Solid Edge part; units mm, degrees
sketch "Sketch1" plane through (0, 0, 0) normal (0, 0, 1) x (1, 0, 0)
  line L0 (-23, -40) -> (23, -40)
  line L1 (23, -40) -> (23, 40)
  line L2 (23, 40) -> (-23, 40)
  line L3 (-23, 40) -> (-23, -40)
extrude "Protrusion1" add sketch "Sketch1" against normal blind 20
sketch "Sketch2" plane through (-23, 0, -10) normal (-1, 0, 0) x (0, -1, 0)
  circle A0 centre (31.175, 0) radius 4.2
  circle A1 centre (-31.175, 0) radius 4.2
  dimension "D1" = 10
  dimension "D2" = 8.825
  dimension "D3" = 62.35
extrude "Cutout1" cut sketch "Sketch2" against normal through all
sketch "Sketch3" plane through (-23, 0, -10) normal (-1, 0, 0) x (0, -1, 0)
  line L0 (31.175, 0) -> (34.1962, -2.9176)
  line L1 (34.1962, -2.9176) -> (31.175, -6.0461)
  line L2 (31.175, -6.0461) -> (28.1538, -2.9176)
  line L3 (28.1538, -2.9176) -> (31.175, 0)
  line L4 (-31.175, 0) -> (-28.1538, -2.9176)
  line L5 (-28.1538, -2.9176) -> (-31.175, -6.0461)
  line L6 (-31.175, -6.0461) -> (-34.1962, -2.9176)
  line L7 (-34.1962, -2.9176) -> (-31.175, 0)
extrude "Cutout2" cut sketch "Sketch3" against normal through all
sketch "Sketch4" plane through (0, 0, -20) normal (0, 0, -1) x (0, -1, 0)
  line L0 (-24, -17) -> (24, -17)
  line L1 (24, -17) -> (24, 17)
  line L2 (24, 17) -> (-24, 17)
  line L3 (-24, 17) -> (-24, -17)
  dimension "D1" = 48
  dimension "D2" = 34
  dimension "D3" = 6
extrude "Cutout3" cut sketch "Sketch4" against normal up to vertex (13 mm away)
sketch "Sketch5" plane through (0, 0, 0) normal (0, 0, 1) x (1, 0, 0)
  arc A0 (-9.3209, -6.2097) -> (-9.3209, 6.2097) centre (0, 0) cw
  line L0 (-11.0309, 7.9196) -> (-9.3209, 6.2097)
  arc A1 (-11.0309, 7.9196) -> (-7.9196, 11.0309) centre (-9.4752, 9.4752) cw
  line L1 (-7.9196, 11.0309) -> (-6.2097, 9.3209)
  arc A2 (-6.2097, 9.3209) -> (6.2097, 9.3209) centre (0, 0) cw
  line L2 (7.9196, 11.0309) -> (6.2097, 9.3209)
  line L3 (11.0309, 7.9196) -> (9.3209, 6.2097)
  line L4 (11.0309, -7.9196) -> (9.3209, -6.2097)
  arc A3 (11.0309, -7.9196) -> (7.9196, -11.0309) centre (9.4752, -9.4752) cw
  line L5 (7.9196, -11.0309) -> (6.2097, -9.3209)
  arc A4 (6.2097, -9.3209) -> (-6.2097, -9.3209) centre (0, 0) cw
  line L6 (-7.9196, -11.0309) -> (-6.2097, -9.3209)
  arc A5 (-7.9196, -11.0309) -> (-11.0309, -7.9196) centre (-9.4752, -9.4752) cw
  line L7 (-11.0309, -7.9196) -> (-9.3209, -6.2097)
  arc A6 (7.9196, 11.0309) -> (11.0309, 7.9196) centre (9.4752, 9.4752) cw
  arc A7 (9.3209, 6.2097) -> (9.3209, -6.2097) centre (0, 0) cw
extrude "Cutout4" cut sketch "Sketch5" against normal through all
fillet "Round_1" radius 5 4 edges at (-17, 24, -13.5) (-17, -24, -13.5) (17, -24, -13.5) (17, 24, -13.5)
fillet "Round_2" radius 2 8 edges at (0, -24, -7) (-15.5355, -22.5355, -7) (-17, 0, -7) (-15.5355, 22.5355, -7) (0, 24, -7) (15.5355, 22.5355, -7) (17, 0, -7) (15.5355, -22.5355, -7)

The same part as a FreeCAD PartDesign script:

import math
import FreeCAD as App
import Part
import Sketcher

V = App.Vector
Q = App.Units.Quantity


def edges_at(feature, points):
    """Names of the edges that pass closest to the given points."""
    edges = feature.Shape.Edges
    near = lambda p: min(range(len(edges)), key=lambda i: edges[i].distToShape(Part.Vertex(*p))[0])
    return sorted({f"Edge{near(p) + 1}" for p in points})


def add_polygon(sketch, points):
    """Adds a closed chain of lines whose ends are joined by coincident constraints."""
    first, n = sketch.GeometryCount, len(points)
    for a, b in zip(points, points[1:] + points[:1]):
        sketch.addGeometry(Part.LineSegment(App.Vector(*a, 0), App.Vector(*b, 0)), False)
    for i in range(n):
        sketch.addConstraint(Sketcher.Constraint("Coincident", first + i, 2, first + (i + 1) % n, 1))

doc = App.newDocument("Part")
params = doc.addObject("Spreadsheet::Sheet", "Params")
for row, (alias, value) in enumerate([
    ("sketch1_width", "46 mm"),
    ("sketch1_height", "80 mm"),
    ("pad1_length", "20 mm"),
    ("sketch2_diameter", "8.4 mm"),
    ("sketch3_length", "4.2 mm"),
    ("sketch4_width", "34 mm"),
    ("pocket3_length", "13 mm"),
    ("sketch5_radius", "11.2 mm"),
    ("sketch5_radius2", "2.2 mm"),
    ("fillet_radius", "5 mm"),
    ("fillet2_radius", "2 mm"),
], start=1):
    params.set(f"A{row}", alias)
    params.set(f"B{row}", "=" + value)
    params.setAlias(f"B{row}", alias)

body = doc.addObject("PartDesign::Body", "Body")

# Sketch on XY plane
sketch1 = body.newObject("Sketcher::SketchObject", "Sketch")
sketch1.AttachmentSupport = (doc.getObject("XY_Plane"), [""])
sketch1.MapMode = "FlatFace"
add_polygon(sketch1, [(-23, 40), (-23, -40), (23, -40), (23, 40)])  # lines 0-3
sketch1.addConstraint(Sketcher.Constraint("Vertical", 0))
sketch1.addConstraint(Sketcher.Constraint("Horizontal", 1))
sketch1.addConstraint(Sketcher.Constraint("Vertical", 2))
sketch1.addConstraint(Sketcher.Constraint("Horizontal", 3))
sketch1.addConstraint(Sketcher.Constraint("Symmetric", 0, 2, 2, 2, -1, 1))
sketch1.addConstraint(Sketcher.Constraint("DistanceX", 1, 1, 1, 2, Q("46 mm")))
sketch1.addConstraint(Sketcher.Constraint("DistanceY", 0, 2, 0, 1, Q("80 mm")))
sketch1.setExpression("Constraints[9]", "Params.sketch1_width")
sketch1.setExpression("Constraints[10]", "Params.sketch1_height")
pad1 = body.newObject("PartDesign::Pad", "Pad")
pad1.Profile = sketch1
pad1.setExpression("Length", "Params.pad1_length")
pad1.Reversed = True

# Sketch on YZ plane
sketch2 = body.newObject("Sketcher::SketchObject", "Sketch001")
sketch2.AttachmentSupport = (doc.getObject("YZ_Plane"), [""])
sketch2.MapMode = "FlatFace"
sketch2.AttachmentOffset = App.Placement(V(0, 0, -23), App.Rotation())
sketch2.addGeometry(Part.Circle(V(-31.2, -10, 0), V(0, 0, 1), 4.2), False)
sketch2.addGeometry(Part.Circle(V(31.2, -10, 0), V(0, 0, 1), 4.2), False)
sketch2.addConstraint(Sketcher.Constraint("Equal", 0, 1))
sketch2.addConstraint(Sketcher.Constraint("Symmetric", 0, 3, 1, 3, -2))
sketch2.addConstraint(Sketcher.Constraint("Diameter", 0, Q("8.4 mm")))
sketch2.addConstraint(Sketcher.Constraint("DistanceX", 0, 3, -1, 1, Q("31.175 mm")))
sketch2.addConstraint(Sketcher.Constraint("DistanceY", 0, 3, -1, 1, Q("10 mm")))
sketch2.setExpression("Constraints[2]", "Params.sketch2_diameter")
pocket1 = body.newObject("PartDesign::Pocket", "Pocket")
pocket1.Profile = sketch2
pocket1.Type = "ThroughAll"
pocket1.Reversed = True

# Sketch on YZ plane
sketch3 = body.newObject("Sketcher::SketchObject", "Sketch002")
sketch3.AttachmentSupport = (doc.getObject("YZ_Plane"), [""])
sketch3.MapMode = "FlatFace"
sketch3.AttachmentOffset = App.Placement(V(0, 0, -23), App.Rotation())
add_polygon(sketch3, [(-34.2, -12.9), (-31.2, -10), (-28.2, -12.9), (-31.2, -16)])  # lines 0-3
add_polygon(sketch3, [(28.2, -12.9), (31.2, -10), (34.2, -12.9), (31.2, -16)])  # lines 4-7
sketch3.addConstraint(Sketcher.Constraint("Symmetric", 0, 2, 4, 2, -2))
sketch3.addConstraint(Sketcher.Constraint("Symmetric", 3, 2, 5, 2, -2))
sketch3.addConstraint(Sketcher.Constraint("Symmetric", 2, 2, 6, 2, -2))
sketch3.addConstraint(Sketcher.Constraint("Symmetric", 1, 2, 7, 2, -2))
sketch3.addConstraint(Sketcher.Constraint("Perpendicular", 1, 2))
sketch3.addConstraint(Sketcher.Constraint("Perpendicular", 0, 3))
sketch3.addConstraint(Sketcher.Constraint("Perpendicular", 3, 4))
sketch3.addConstraint(Sketcher.Constraint("Horizontal", 1, 2, 3, 2))
sketch3.addConstraint(Sketcher.Constraint("Angle", 0, Q("44.0006 deg")))
sketch3.addConstraint(Sketcher.Constraint("DistanceY", 0, 2, -1, 1, Q("10 mm")))
sketch3.addConstraint(Sketcher.Constraint("Distance", 0, Q("4.2 mm")))
sketch3.addConstraint(Sketcher.Constraint("DistanceX", 0, 2, 4, 2, Q("62.35 mm")))
sketch3.setExpression("Constraints[18]", "Params.sketch3_length")
pocket2 = body.newObject("PartDesign::Pocket", "Pocket001")
pocket2.Profile = sketch3
pocket2.Type = "ThroughAll"
pocket2.Reversed = True

# Sketch on XY plane
sketch4 = body.newObject("Sketcher::SketchObject", "Sketch003")
sketch4.AttachmentSupport = (doc.getObject("XY_Plane"), [""])
sketch4.MapMode = "FlatFace"
sketch4.AttachmentOffset = App.Placement(V(0, 0, -20), App.Rotation())
add_polygon(sketch4, [(-17, 24), (17, 24), (17, -24), (-17, -24)])  # lines 0-3
sketch4.addConstraint(Sketcher.Constraint("Horizontal", 0))
sketch4.addConstraint(Sketcher.Constraint("Vertical", 1))
sketch4.addConstraint(Sketcher.Constraint("Horizontal", 2))
sketch4.addConstraint(Sketcher.Constraint("Vertical", 3))
sketch4.addConstraint(Sketcher.Constraint("Symmetric", 0, 2, 2, 2, -1, 1))
sketch4.addConstraint(Sketcher.Constraint("DistanceY", -1, 1, 0, 2, Q("24 mm")))
sketch4.addConstraint(Sketcher.Constraint("DistanceX", 0, 1, 0, 2, Q("34 mm")))
sketch4.setExpression("Constraints[10]", "Params.sketch4_width")
pocket3 = body.newObject("PartDesign::Pocket", "Pocket002")
pocket3.Profile = sketch4
pocket3.setExpression("Length", "Params.pocket3_length")
pocket3.Reversed = True

# Sketch on XY plane
sketch5 = body.newObject("Sketcher::SketchObject", "Sketch004")
sketch5.AttachmentSupport = (doc.getObject("XY_Plane"), [""])
sketch5.MapMode = "FlatFace"
sketch5.addGeometry(Part.ArcOfCircle(Part.Circle(V(0, 0, 0), V(0, 0, 1), 11.2), math.radians(146), math.radians(214)), False)
sketch5.addGeometry(Part.LineSegment(V(-9.3, -6.2, 0), V(-11, -7.9, 0)), False)
sketch5.addGeometry(Part.ArcOfCircle(Part.Circle(V(-9.5, -9.5, 0), V(0, 0, 1), 2.2), math.radians(135), math.radians(315)), False)
sketch5.addGeometry(Part.LineSegment(V(-7.9, -11, 0), V(-6.2, -9.3, 0)), False)
sketch5.addGeometry(Part.ArcOfCircle(Part.Circle(V(0, 0, 0), V(0, 0, 1), 11.2), math.radians(-124), math.radians(-56)), False)
sketch5.addGeometry(Part.LineSegment(V(6.2, -9.3, 0), V(7.9, -11, 0)), False)
sketch5.addGeometry(Part.ArcOfCircle(Part.Circle(V(9.5, -9.5, 0), V(0, 0, 1), 2.2), math.radians(-135), math.radians(45)), False)
sketch5.addGeometry(Part.LineSegment(V(11, -7.9, 0), V(9.3, -6.2, 0)), False)
sketch5.addGeometry(Part.ArcOfCircle(Part.Circle(V(0, 0, 0), V(0, 0, 1), 11.2), math.radians(-34), math.radians(34)), False)
sketch5.addGeometry(Part.LineSegment(V(9.3, 6.2, 0), V(11, 7.9, 0)), False)
sketch5.addGeometry(Part.ArcOfCircle(Part.Circle(V(9.5, 9.5, 0), V(0, 0, 1), 2.2), math.radians(-45), math.radians(135)), False)
sketch5.addGeometry(Part.LineSegment(V(7.9, 11, 0), V(6.2, 9.3, 0)), False)
sketch5.addGeometry(Part.ArcOfCircle(Part.Circle(V(0, 0, 0), V(0, 0, 1), 11.2), math.radians(56), math.radians(124)), False)
sketch5.addGeometry(Part.LineSegment(V(-6.2, 9.3, 0), V(-7.9, 11, 0)), False)
sketch5.addGeometry(Part.ArcOfCircle(Part.Circle(V(-9.5, 9.5, 0), V(0, 0, 1), 2.2), math.radians(45), math.radians(225)), False)
sketch5.addGeometry(Part.LineSegment(V(-11, 7.9, 0), V(-9.3, 6.2, 0)), False)
sketch5.addConstraint(Sketcher.Constraint("Coincident", 0, 2, 1, 1))
sketch5.addConstraint(Sketcher.Constraint("Tangent", 1, 2, 2, 1))
sketch5.addConstraint(Sketcher.Constraint("Tangent", 2, 2, 3, 1))
sketch5.addConstraint(Sketcher.Constraint("Coincident", 3, 2, 4, 1))
sketch5.addConstraint(Sketcher.Constraint("Coincident", 4, 2, 5, 1))
sketch5.addConstraint(Sketcher.Constraint("Tangent", 5, 2, 6, 1))
sketch5.addConstraint(Sketcher.Constraint("Tangent", 6, 2, 7, 1))
sketch5.addConstraint(Sketcher.Constraint("Coincident", 7, 2, 8, 1))
sketch5.addConstraint(Sketcher.Constraint("Coincident", 8, 2, 9, 1))
sketch5.addConstraint(Sketcher.Constraint("Tangent", 9, 2, 10, 1))
sketch5.addConstraint(Sketcher.Constraint("Tangent", 10, 2, 11, 1))
sketch5.addConstraint(Sketcher.Constraint("Coincident", 11, 2, 12, 1))
sketch5.addConstraint(Sketcher.Constraint("Coincident", 12, 2, 13, 1))
sketch5.addConstraint(Sketcher.Constraint("Tangent", 13, 2, 14, 1))
sketch5.addConstraint(Sketcher.Constraint("Tangent", 14, 2, 15, 1))
sketch5.addConstraint(Sketcher.Constraint("Coincident", 15, 2, 0, 1))
sketch5.addConstraint(Sketcher.Constraint("Coincident", 0, 3, -1, 1))
sketch5.addConstraint(Sketcher.Constraint("Coincident", 4, 3, -1, 1))
sketch5.addConstraint(Sketcher.Constraint("Coincident", 8, 3, -1, 1))
sketch5.addConstraint(Sketcher.Constraint("Coincident", 12, 3, -1, 1))
sketch5.addConstraint(Sketcher.Constraint("Equal", 0, 4))
sketch5.addConstraint(Sketcher.Constraint("Equal", 2, 6))
sketch5.addConstraint(Sketcher.Constraint("Equal", 4, 8))
sketch5.addConstraint(Sketcher.Constraint("Equal", 6, 10))
sketch5.addConstraint(Sketcher.Constraint("Equal", 8, 12))
sketch5.addConstraint(Sketcher.Constraint("Equal", 10, 14))
sketch5.addConstraint(Sketcher.Constraint("Symmetric", 2, 3, 10, 3, -1, 1))
sketch5.addConstraint(Sketcher.Constraint("Symmetric", 6, 3, 14, 3, -1, 1))
sketch5.addConstraint(Sketcher.Constraint("Symmetric", 2, 3, 6, 3, -2))
sketch5.addConstraint(Sketcher.Constraint("Parallel", 1, 3))
sketch5.addConstraint(Sketcher.Constraint("Perpendicular", 3, 5))
sketch5.addConstraint(Sketcher.Constraint("Parallel", 5, 7))
sketch5.addConstraint(Sketcher.Constraint("Perpendicular", 7, 9))
sketch5.addConstraint(Sketcher.Constraint("Parallel", 9, 11))
sketch5.addConstraint(Sketcher.Constraint("Perpendicular", 11, 13))
sketch5.addConstraint(Sketcher.Constraint("Parallel", 13, 15))
sketch5.addConstraint(Sketcher.Constraint("Horizontal", 3, 2, 4, 2))
sketch5.addConstraint(Sketcher.Constraint("Equal", 1, 3))
sketch5.addConstraint(Sketcher.Constraint("Radius", 0, Q("11.2 mm")))
sketch5.addConstraint(Sketcher.Constraint("Radius", 2, Q("2.2 mm")))
sketch5.addConstraint(Sketcher.Constraint("DistanceX", 1, 2, 0, 2, Q("1.71 mm")))
sketch5.setExpression("Constraints[38]", "Params.sketch5_radius")
sketch5.setExpression("Constraints[39]", "Params.sketch5_radius2")
pocket4 = body.newObject("PartDesign::Pocket", "Pocket003")
pocket4.Profile = sketch5
pocket4.Type = "ThroughAll"
doc.recompute()

fillet = body.newObject("PartDesign::Fillet", "Fillet")
fillet.Base = (pocket4, edges_at(pocket4, [
    (-17, 24, -13.5),
    (-17, -24, -13.5),
    (17, -24, -13.5),
    (17, 24, -13.5),
]))
fillet.setExpression("Radius", "Params.fillet_radius")
doc.recompute()

fillet2 = body.newObject("PartDesign::Fillet", "Fillet001")
fillet2.Base = (fillet, edges_at(fillet, [
    (0, -24, -7),
    (-15.536, -22.535, -7),
    (-17, 0, -7),
    (-15.536, 22.535, -7),
    (0, 24, -7),
    (15.536, 22.535, -7),
    (17, 0, -7),
    (15.536, -22.535, -7),
]))
fillet2.setExpression("Radius", "Params.fillet2_radius")

doc.recompute()
